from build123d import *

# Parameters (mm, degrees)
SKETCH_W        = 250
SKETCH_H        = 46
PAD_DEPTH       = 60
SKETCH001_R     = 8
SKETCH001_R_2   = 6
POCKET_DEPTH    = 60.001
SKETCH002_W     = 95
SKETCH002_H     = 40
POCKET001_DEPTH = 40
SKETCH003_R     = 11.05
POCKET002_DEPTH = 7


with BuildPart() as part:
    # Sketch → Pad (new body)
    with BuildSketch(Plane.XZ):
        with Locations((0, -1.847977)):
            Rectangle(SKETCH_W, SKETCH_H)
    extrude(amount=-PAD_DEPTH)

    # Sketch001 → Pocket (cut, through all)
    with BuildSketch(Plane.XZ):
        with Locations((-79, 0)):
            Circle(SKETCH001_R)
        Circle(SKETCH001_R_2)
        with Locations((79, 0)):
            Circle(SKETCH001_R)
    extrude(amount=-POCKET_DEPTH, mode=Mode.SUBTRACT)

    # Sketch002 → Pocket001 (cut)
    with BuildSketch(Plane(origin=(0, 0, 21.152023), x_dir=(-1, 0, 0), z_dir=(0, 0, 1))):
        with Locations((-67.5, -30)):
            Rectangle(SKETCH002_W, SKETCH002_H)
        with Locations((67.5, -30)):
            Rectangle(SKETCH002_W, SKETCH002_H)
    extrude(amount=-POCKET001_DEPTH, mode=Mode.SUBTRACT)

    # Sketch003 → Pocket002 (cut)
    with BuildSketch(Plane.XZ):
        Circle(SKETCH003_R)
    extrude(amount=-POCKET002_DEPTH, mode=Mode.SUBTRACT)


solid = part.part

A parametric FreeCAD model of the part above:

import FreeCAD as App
import Part
import Sketcher
Q = App.Units.Quantity

doc = App.newDocument("Part")
body = doc.addObject("PartDesign::Body", "Body")

sketch1 = body.newObject("Sketcher::SketchObject", "Sketch")
sketch1.AttachmentSupport = (doc.getObject("XZ_Plane"), [""])
sketch1.MapMode = "FlatFace"
sketch1.addGeometry(Part.LineSegment(App.Vector(-125, 21, 0), App.Vector(-125, -25, 0)), False)
sketch1.addGeometry(Part.LineSegment(App.Vector(-125, -25, 0), App.Vector(125, -25, 0)), False)
sketch1.addGeometry(Part.LineSegment(App.Vector(125, -25, 0), App.Vector(125, 21, 0)), False)
sketch1.addGeometry(Part.LineSegment(App.Vector(125, 21, 0), App.Vector(-125, 21, 0)), False)
sketch1.addConstraint(Sketcher.Constraint("Coincident", 0, 2, 1, 1))
sketch1.addConstraint(Sketcher.Constraint("Coincident", 1, 2, 2, 1))
sketch1.addConstraint(Sketcher.Constraint("Coincident", 2, 2, 3, 1))
sketch1.addConstraint(Sketcher.Constraint("Coincident", 3, 2, 0, 1))
sketch1.addConstraint(Sketcher.Constraint("Vertical", 0))
sketch1.addConstraint(Sketcher.Constraint("Horizontal", 1))
sketch1.addConstraint(Sketcher.Constraint("Vertical", 2))
sketch1.addConstraint(Sketcher.Constraint("Horizontal", 3))
sketch1.addConstraint(Sketcher.Constraint("DistanceX", 1, 1, 1, 2, Q("250 mm")))
sketch1.addConstraint(Sketcher.Constraint("DistanceY", 0, 2, 0, 1, Q("46 mm")))
sketch1.addConstraint(Sketcher.Constraint("DistanceX", 0, 2, -1, 1, Q("125 mm")))
sketch1.addConstraint(Sketcher.Constraint("DistanceY", 0, 2, -1, 1, Q("24.847977 mm")))
pad1 = body.newObject("PartDesign::Pad", "Pad")
pad1.Profile = sketch1
pad1.Length = 60
pad1.Reversed = True

sketch2 = body.newObject("Sketcher::SketchObject", "Sketch001")
sketch2.AttachmentSupport = (doc.getObject("XZ_Plane"), [""])
sketch2.MapMode = "FlatFace"
sketch2.addGeometry(Part.Circle(App.Vector(-79, 0, 0), App.Vector(0, 0, 1), 8), False)
sketch2.addGeometry(Part.Circle(App.Vector(0, 0, 0), App.Vector(0, 0, 1), 6), False)
sketch2.addGeometry(Part.Circle(App.Vector(79, 0, 0), App.Vector(0, 0, 1), 8), False)
sketch2.addConstraint(Sketcher.Constraint("Coincident", 1, 3, -1, 1))
sketch2.addConstraint(Sketcher.Constraint("Equal", 0, 2))
sketch2.addConstraint(Sketcher.Constraint("Symmetric", 0, 3, 2, 3, -1, 1))
sketch2.addConstraint(Sketcher.Constraint("PointOnObject", 0, 3, -1))
sketch2.addConstraint(Sketcher.Constraint("Diameter", 0, Q("16 mm")))
sketch2.addConstraint(Sketcher.Constraint("Diameter", 1, Q("12 mm")))
sketch2.addConstraint(Sketcher.Constraint("DistanceX", 0, 3, -1, 1, Q("79 mm")))
pocket1 = body.newObject("PartDesign::Pocket", "Pocket")
pocket1.Profile = sketch2
pocket1.Type = "ThroughAll"

sketch3 = body.newObject("Sketcher::SketchObject", "Sketch002")
sketch3.AttachmentSupport = (doc.getObject("XY_Plane"), [""])
sketch3.MapMode = "FlatFace"
sketch3.AttachmentOffset = App.Placement(App.Vector(0, 0, 21.152023), App.Rotation())
sketch3.addGeometry(Part.LineSegment(App.Vector(115, 10, 0), App.Vector(115, 50, 0)), False)
sketch3.addGeometry(Part.LineSegment(App.Vector(115, 50, 0), App.Vector(20, 50, 0)), False)
sketch3.addGeometry(Part.LineSegment(App.Vector(20, 50, 0), App.Vector(20, 10, 0)), False)
sketch3.addGeometry(Part.LineSegment(App.Vector(20, 10, 0), App.Vector(115, 10, 0)), False)
sketch3.addGeometry(Part.LineSegment(App.Vector(-20, 10, 0), App.Vector(-20, 50, 0)), False)
sketch3.addGeometry(Part.LineSegment(App.Vector(-20, 50, 0), App.Vector(-115, 50, 0)), False)
sketch3.addGeometry(Part.LineSegment(App.Vector(-115, 50, 0), App.Vector(-115, 10, 0)), False)
sketch3.addGeometry(Part.LineSegment(App.Vector(-115, 10, 0), App.Vector(-20, 10, 0)), False)
sketch3.addConstraint(Sketcher.Constraint("Coincident", 0, 2, 1, 1))
sketch3.addConstraint(Sketcher.Constraint("Coincident", 1, 2, 2, 1))
sketch3.addConstraint(Sketcher.Constraint("Coincident", 2, 2, 3, 1))
sketch3.addConstraint(Sketcher.Constraint("Coincident", 3, 2, 0, 1))
sketch3.addConstraint(Sketcher.Constraint("Coincident", 4, 2, 5, 1))
sketch3.addConstraint(Sketcher.Constraint("Coincident", 5, 2, 6, 1))
sketch3.addConstraint(Sketcher.Constraint("Coincident", 6, 2, 7, 1))
sketch3.addConstraint(Sketcher.Constraint("Coincident", 7, 2, 4, 1))
sketch3.addConstraint(Sketcher.Constraint("Vertical", 0))
sketch3.addConstraint(Sketcher.Constraint("Horizontal", 1))
sketch3.addConstraint(Sketcher.Constraint("Vertical", 2))
sketch3.addConstraint(Sketcher.Constraint("Horizontal", 3))
sketch3.addConstraint(Sketcher.Constraint("Vertical", 4))
sketch3.addConstraint(Sketcher.Constraint("Horizontal", 5))
sketch3.addConstraint(Sketcher.Constraint("Vertical", 6))
sketch3.addConstraint(Sketcher.Constraint("Horizontal", 7))
sketch3.addConstraint(Sketcher.Constraint("Symmetric", 1, 2, 4, 2, -2))
sketch3.addConstraint(Sketcher.Constraint("Symmetric", 3, 2, 6, 2, -2))
sketch3.addConstraint(Sketcher.Constraint("DistanceX", 1, 2, 1, 1, Q("95 mm")))
sketch3.addConstraint(Sketcher.Constraint("DistanceY", 0, 1, 0, 2, Q("40 mm")))
sketch3.addConstraint(Sketcher.Constraint("DistanceX", -1, 1, 0, 2, Q("115 mm")))
sketch3.addConstraint(Sketcher.Constraint("DistanceY", -1, 1, 0, 2, Q("50 mm")))
pocket2 = body.newObject("PartDesign::Pocket", "Pocket001")
pocket2.Profile = sketch3
pocket2.Length = 40

sketch4 = body.newObject("Sketcher::SketchObject", "Sketch003")
sketch4.AttachmentSupport = (doc.getObject("XZ_Plane"), [""])
sketch4.MapMode = "FlatFace"
sketch4.addGeometry(Part.Circle(App.Vector(0, 0, 0), App.Vector(0, 0, 1), 11), False)
sketch4.addConstraint(Sketcher.Constraint("Coincident", 0, 3, -1, 1))
sketch4.addConstraint(Sketcher.Constraint("Diameter", 0, Q("22.1 mm")))
pocket3 = body.newObject("PartDesign::Pocket", "Pocket002")
pocket3.Profile = sketch4
pocket3.Length = 7

doc.recompute()
